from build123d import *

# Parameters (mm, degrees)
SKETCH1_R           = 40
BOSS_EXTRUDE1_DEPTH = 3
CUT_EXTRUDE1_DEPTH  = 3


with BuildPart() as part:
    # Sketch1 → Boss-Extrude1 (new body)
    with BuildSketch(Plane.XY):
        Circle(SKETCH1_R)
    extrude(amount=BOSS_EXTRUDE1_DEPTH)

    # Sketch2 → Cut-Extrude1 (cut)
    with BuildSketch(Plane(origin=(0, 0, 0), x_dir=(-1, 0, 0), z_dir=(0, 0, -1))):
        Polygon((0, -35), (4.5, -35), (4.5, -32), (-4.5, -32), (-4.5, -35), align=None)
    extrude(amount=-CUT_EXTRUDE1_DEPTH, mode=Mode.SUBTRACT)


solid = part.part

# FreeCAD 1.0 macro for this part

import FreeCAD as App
import Part
import Sketcher
from FreeCAD import Vector

doc = App.newDocument("Part")
body = doc.addObject("PartDesign::Body", "Body")

# Sketch on XY plane
sketch1 = body.newObject("Sketcher::SketchObject", "Sketch")
sketch1.AttachmentSupport = (doc.getObject("XY_Plane"), [""])
sketch1.MapMode = "FlatFace"
sketch1.addGeometry(Part.Circle(Vector(0, 0, 0), Vector(0, 0, 1), 40), False)
sketch1.addConstraint([
    Sketcher.Constraint("Coincident", 0, 3, -1, 1),
    Sketcher.Constraint("Diameter", 0, 80.0),
])
pad1 = body.newObject("PartDesign::Pad", "Pad")
pad1.Profile = sketch1
pad1.Length = 3

# Sketch on XY plane
sketch2 = body.newObject("Sketcher::SketchObject", "Sketch001")
sketch2.AttachmentSupport = (doc.getObject("XY_Plane"), [""])
sketch2.MapMode = "FlatFace"
sketch2.addGeometry([
    Part.LineSegment(Vector(-4.5, -35, 0), Vector(-4.5, -32, 0)),
    Part.LineSegment(Vector(-4.5, -32, 0), Vector(4.5, -32, 0)),
    Part.LineSegment(Vector(4.5, -32, 0), Vector(4.5, -35, 0)),
    Part.LineSegment(Vector(4.5, -35, 0), Vector(-4.5, -35, 0)),
], False)
sketch2.addConstraint([
    Sketcher.Constraint("Coincident", 0, 2, 1, 1),
    Sketcher.Constraint("Coincident", 1, 2, 2, 1),
    Sketcher.Constraint("Coincident", 2, 2, 3, 1),
    Sketcher.Constraint("Coincident", 3, 2, 0, 1),
    Sketcher.Constraint("Vertical", 0),
    Sketcher.Constraint("Horizontal", 1),
    Sketcher.Constraint("Vertical", 2),
    Sketcher.Constraint("Horizontal", 3),
    Sketcher.Constraint("DistanceX", 1, 1, 1, 2, 9.0),
    Sketcher.Constraint("DistanceY", 0, 1, 0, 2, 3.0),
    Sketcher.Constraint("DistanceY", 0, 2, -1, 1, 32.0),
    Sketcher.Constraint("DistanceX", 0, 2, -1, 1, 4.5),
])
pocket1 = body.newObject("PartDesign::Pocket", "Pocket")
pocket1.Profile = sketch2
pocket1.Length = 3
pocket1.Reversed = True

doc.recompute()
